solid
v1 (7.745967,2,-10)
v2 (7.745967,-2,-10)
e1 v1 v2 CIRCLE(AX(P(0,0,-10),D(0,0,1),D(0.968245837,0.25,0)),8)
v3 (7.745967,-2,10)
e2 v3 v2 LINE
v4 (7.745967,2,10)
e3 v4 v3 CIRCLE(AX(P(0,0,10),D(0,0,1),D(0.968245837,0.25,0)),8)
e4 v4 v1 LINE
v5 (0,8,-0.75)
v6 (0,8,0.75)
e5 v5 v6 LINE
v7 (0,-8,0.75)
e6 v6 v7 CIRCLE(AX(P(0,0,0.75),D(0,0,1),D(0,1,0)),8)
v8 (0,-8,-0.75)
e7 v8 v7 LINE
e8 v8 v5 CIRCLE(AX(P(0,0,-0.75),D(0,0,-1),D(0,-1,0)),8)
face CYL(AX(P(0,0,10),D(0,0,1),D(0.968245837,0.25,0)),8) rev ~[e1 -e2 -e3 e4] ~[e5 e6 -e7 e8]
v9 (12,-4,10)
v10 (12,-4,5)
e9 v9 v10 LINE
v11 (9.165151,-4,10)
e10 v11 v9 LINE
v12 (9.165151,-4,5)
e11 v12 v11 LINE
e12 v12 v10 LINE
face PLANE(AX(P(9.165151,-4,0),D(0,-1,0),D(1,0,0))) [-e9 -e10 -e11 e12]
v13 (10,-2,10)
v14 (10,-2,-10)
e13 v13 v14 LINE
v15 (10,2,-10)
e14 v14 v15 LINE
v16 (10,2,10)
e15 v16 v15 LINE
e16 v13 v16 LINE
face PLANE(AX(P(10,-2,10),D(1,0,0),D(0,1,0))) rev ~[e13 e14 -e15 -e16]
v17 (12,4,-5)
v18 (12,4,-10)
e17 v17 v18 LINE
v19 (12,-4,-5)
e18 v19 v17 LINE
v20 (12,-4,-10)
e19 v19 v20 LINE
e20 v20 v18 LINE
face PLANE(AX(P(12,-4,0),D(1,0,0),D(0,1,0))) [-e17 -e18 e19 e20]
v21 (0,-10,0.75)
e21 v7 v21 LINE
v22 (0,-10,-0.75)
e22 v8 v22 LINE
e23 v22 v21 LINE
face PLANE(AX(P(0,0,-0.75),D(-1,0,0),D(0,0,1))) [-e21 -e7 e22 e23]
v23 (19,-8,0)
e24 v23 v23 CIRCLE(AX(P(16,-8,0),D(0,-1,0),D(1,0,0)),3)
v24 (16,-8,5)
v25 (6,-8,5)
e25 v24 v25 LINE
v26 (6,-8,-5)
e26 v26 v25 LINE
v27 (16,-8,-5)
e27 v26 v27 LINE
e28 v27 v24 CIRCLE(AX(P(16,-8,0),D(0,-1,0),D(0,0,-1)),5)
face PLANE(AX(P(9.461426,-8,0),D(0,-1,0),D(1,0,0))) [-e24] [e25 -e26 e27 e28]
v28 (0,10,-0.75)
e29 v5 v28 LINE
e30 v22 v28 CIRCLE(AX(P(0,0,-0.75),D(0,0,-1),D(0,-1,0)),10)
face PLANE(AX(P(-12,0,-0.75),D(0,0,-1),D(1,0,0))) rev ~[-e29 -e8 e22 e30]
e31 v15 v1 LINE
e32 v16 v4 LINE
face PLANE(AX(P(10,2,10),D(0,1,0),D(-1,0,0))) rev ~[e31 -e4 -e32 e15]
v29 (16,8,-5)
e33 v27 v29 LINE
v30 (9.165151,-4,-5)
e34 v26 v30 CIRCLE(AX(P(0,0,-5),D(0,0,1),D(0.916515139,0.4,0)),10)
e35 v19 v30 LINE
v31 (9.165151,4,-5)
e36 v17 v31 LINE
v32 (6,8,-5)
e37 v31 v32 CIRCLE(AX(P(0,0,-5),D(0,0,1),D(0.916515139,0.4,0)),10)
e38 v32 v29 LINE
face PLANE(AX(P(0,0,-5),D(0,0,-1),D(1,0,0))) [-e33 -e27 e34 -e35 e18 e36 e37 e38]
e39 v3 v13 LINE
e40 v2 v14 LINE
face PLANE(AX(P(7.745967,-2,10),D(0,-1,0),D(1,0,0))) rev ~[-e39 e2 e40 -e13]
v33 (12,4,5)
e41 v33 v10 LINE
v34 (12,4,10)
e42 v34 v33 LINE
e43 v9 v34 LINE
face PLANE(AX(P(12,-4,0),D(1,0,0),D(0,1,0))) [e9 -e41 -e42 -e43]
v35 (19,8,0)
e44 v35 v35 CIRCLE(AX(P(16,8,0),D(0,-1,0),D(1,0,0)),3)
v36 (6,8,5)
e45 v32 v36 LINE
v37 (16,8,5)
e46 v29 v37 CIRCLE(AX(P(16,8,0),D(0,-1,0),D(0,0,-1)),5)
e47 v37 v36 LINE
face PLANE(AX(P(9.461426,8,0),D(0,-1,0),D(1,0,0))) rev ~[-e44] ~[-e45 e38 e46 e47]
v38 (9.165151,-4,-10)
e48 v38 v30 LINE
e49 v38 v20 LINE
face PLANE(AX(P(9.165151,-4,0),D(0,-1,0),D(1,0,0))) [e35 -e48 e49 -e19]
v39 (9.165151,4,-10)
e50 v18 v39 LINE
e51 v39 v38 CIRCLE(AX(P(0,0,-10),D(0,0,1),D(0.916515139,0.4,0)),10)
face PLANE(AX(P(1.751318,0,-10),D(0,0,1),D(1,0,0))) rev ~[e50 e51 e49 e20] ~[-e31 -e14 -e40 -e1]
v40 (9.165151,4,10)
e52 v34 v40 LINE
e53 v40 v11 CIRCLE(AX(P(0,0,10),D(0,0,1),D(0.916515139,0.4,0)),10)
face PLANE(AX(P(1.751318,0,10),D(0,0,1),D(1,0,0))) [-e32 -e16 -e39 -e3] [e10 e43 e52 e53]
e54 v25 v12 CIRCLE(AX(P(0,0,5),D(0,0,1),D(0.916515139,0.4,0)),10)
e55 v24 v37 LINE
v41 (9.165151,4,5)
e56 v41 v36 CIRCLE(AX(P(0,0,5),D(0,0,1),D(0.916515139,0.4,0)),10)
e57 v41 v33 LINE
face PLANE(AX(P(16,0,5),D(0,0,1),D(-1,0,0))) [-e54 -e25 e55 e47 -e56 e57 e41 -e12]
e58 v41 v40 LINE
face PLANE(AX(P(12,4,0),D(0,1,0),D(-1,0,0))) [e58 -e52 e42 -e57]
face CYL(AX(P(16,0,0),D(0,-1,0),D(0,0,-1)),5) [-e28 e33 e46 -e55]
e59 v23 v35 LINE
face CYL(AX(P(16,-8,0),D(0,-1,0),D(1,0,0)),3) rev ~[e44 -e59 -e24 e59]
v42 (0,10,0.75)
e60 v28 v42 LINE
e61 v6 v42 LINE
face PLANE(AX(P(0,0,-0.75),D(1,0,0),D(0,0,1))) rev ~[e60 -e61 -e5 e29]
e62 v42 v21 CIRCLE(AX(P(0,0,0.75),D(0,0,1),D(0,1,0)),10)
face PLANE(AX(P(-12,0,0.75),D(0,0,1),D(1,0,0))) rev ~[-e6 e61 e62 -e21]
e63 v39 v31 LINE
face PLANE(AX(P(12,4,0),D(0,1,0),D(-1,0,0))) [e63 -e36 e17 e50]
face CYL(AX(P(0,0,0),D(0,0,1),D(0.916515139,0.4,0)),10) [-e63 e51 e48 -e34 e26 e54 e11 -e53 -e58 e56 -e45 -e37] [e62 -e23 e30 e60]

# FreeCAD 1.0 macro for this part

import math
import FreeCAD as App
import Part
import Sketcher
from FreeCAD import Vector

doc = App.newDocument("Part")
body = doc.addObject("PartDesign::Body", "Body")

# Sketch on XY plane
sketch1 = body.newObject("Sketcher::SketchObject", "Sketch")
sketch1.AttachmentSupport = (doc.getObject("XY_Plane"), [""])
sketch1.MapMode = "FlatFace"
sketch1.addGeometry([
    Part.LineSegment(Vector(12, 4, 0), Vector(9.2, 4, 0)),
    Part.ArcOfCircle(Part.Circle(Vector(0, 0, 0), Vector(0, 0, 1), 10), math.radians(24), math.radians(336)),
    Part.LineSegment(Vector(9.2, -4, 0), Vector(12, -4, 0)),
    Part.LineSegment(Vector(12, -4, 0), Vector(12, 4, 0)),
], False)
sketch1.addConstraint([
    Sketcher.Constraint("Coincident", 0, 2, 1, 1),
    Sketcher.Constraint("Coincident", 1, 2, 2, 1),
    Sketcher.Constraint("Coincident", 2, 2, 3, 1),
    Sketcher.Constraint("Coincident", 3, 2, 0, 1),
    Sketcher.Constraint("Horizontal", 0),
    Sketcher.Constraint("Horizontal", 2),
    Sketcher.Constraint("Vertical", 3),
    Sketcher.Constraint("Coincident", 1, 3, -1, 1),
    Sketcher.Constraint("Vertical", 0, 2, 1, 2),
    Sketcher.Constraint("Radius", 1, 10.0),
    Sketcher.Constraint("DistanceY", 3, 1, 3, 2, 8.0),
    Sketcher.Constraint("DistanceX", -1, 1, 2, 2, 12.0),
])
pad1 = body.newObject("PartDesign::Pad", "Pad")
pad1.Profile = sketch1
pad1.Type = "TwoLengths"
pad1.Length = 10
pad1.Length2 = 10

# Sketch on XZ plane
sketch2 = body.newObject("Sketcher::SketchObject", "Sketch001")
sketch2.AttachmentSupport = (doc.getObject("XZ_Plane"), [""])
sketch2.MapMode = "FlatFace"
sketch2.addGeometry([
    Part.LineSegment(Vector(16, 5, 0), Vector(0, 5, 0)),
    Part.LineSegment(Vector(0, 5, 0), Vector(0, -5, 0)),
    Part.LineSegment(Vector(0, -5, 0), Vector(16, -5, 0)),
    Part.ArcOfCircle(Part.Circle(Vector(16, 0, 0), Vector(0, 0, 1), 5), math.radians(-90), math.radians(90)),
], False)
sketch2.addConstraint([
    Sketcher.Constraint("Coincident", 0, 2, 1, 1),
    Sketcher.Constraint("Coincident", 1, 2, 2, 1),
    Sketcher.Constraint("Tangent", 2, 2, 3, 1),
    Sketcher.Constraint("Tangent", 3, 2, 0, 1),
    Sketcher.Constraint("Horizontal", 0),
    Sketcher.Constraint("Vertical", 1),
    Sketcher.Constraint("Horizontal", 2),
    Sketcher.Constraint("Symmetric", 0, 2, 1, 2, -1, 1),
    Sketcher.Constraint("Radius", 3, 5.0),
    Sketcher.Constraint("DistanceX", 0, 2, 0, 1, 16.0),
])
pad2 = body.newObject("PartDesign::Pad", "Pad001")
pad2.Profile = sketch2
pad2.Type = "TwoLengths"
pad2.Length = 8
pad2.Length2 = 8

# Sketch on XY plane
sketch3 = body.newObject("Sketcher::SketchObject", "Sketch002")
sketch3.AttachmentSupport = (doc.getObject("XY_Plane"), [""])
sketch3.MapMode = "FlatFace"
sketch3.AttachmentOffset = App.Placement(Vector(0, 0, 10), App.Rotation())
sketch3.addGeometry([
    Part.LineSegment(Vector(10, 2, 0), Vector(7.7, 2, 0)),
    Part.ArcOfCircle(Part.Circle(Vector(0, 0, 0), Vector(0, 0, 1), 8), math.radians(14), math.radians(346)),
    Part.LineSegment(Vector(7.7, -2, 0), Vector(10, -2, 0)),
    Part.LineSegment(Vector(10, -2, 0), Vector(10, 2, 0)),
], False)
sketch3.addConstraint([
    Sketcher.Constraint("Coincident", 0, 2, 1, 1),
    Sketcher.Constraint("Coincident", 1, 2, 2, 1),
    Sketcher.Constraint("Coincident", 2, 2, 3, 1),
    Sketcher.Constraint("Coincident", 3, 2, 0, 1),
    Sketcher.Constraint("Horizontal", 0),
    Sketcher.Constraint("Horizontal", 2),
    Sketcher.Constraint("Vertical", 3),
    Sketcher.Constraint("Coincident", 1, 3, -1, 1),
    Sketcher.Constraint("Vertical", 0, 2, 1, 2),
    Sketcher.Constraint("Radius", 1, 8.0),
    Sketcher.Constraint("DistanceY", 3, 1, 3, 2, 4.0),
    Sketcher.Constraint("DistanceX", -1, 1, 2, 2, 10.0),
])
pocket1 = body.newObject("PartDesign::Pocket", "Pocket")
pocket1.Profile = sketch3
pocket1.Type = "ThroughAll"

# Sketch on XZ plane
sketch4 = body.newObject("Sketcher::SketchObject", "Sketch003")
sketch4.AttachmentSupport = (doc.getObject("XZ_Plane"), [""])
sketch4.MapMode = "FlatFace"
sketch4.AttachmentOffset = App.Placement(Vector(0, 0, 8), App.Rotation())
sketch4.addGeometry(Part.Circle(Vector(16, 0, 0), Vector(0, 0, 1), 3), False)
sketch4.addConstraint([
    Sketcher.Constraint("PointOnObject", 0, 3, -1),
    Sketcher.Constraint("Diameter", 0, 6.0),
    Sketcher.Constraint("DistanceX", -1, 1, 0, 3, 16.0),
])
pocket2 = body.newObject("PartDesign::Pocket", "Pocket001")
pocket2.Profile = sketch4
pocket2.Type = "ThroughAll"

# Sketch on XZ plane
sketch5 = body.newObject("Sketcher::SketchObject", "Sketch004")
sketch5.AttachmentSupport = (doc.getObject("XZ_Plane"), [""])
sketch5.MapMode = "FlatFace"
sketch5.addGeometry([
    Part.LineSegment(Vector(-12, 0.8, 0), Vector(-12, -0.8, 0)),
    Part.LineSegment(Vector(-12, -0.8, 0), Vector(0, -0.8, 0)),
    Part.LineSegment(Vector(0, -0.8, 0), Vector(0, 0.8, 0)),
    Part.LineSegment(Vector(0, 0.8, 0), Vector(-12, 0.8, 0)),
], False)
sketch5.addConstraint([
    Sketcher.Constraint("Coincident", 0, 2, 1, 1),
    Sketcher.Constraint("Coincident", 1, 2, 2, 1),
    Sketcher.Constraint("Coincident", 2, 2, 3, 1),
    Sketcher.Constraint("Coincident", 3, 2, 0, 1),
    Sketcher.Constraint("Vertical", 0),
    Sketcher.Constraint("Horizontal", 1),
    Sketcher.Constraint("Vertical", 2),
    Sketcher.Constraint("Horizontal", 3),
    Sketcher.Constraint("Symmetric", 1, 2, 2, 2, -1, 1),
    Sketcher.Constraint("DistanceX", 1, 1, 1, 2, 12.0),
    Sketcher.Constraint("DistanceY", 0, 2, 0, 1, 1.5),
])
pocket3 = body.newObject("PartDesign::Pocket", "Pocket002")
pocket3.Profile = sketch5
pocket3.Type = "ThroughAll"
pocket3.Midplane = True

doc.recompute()
